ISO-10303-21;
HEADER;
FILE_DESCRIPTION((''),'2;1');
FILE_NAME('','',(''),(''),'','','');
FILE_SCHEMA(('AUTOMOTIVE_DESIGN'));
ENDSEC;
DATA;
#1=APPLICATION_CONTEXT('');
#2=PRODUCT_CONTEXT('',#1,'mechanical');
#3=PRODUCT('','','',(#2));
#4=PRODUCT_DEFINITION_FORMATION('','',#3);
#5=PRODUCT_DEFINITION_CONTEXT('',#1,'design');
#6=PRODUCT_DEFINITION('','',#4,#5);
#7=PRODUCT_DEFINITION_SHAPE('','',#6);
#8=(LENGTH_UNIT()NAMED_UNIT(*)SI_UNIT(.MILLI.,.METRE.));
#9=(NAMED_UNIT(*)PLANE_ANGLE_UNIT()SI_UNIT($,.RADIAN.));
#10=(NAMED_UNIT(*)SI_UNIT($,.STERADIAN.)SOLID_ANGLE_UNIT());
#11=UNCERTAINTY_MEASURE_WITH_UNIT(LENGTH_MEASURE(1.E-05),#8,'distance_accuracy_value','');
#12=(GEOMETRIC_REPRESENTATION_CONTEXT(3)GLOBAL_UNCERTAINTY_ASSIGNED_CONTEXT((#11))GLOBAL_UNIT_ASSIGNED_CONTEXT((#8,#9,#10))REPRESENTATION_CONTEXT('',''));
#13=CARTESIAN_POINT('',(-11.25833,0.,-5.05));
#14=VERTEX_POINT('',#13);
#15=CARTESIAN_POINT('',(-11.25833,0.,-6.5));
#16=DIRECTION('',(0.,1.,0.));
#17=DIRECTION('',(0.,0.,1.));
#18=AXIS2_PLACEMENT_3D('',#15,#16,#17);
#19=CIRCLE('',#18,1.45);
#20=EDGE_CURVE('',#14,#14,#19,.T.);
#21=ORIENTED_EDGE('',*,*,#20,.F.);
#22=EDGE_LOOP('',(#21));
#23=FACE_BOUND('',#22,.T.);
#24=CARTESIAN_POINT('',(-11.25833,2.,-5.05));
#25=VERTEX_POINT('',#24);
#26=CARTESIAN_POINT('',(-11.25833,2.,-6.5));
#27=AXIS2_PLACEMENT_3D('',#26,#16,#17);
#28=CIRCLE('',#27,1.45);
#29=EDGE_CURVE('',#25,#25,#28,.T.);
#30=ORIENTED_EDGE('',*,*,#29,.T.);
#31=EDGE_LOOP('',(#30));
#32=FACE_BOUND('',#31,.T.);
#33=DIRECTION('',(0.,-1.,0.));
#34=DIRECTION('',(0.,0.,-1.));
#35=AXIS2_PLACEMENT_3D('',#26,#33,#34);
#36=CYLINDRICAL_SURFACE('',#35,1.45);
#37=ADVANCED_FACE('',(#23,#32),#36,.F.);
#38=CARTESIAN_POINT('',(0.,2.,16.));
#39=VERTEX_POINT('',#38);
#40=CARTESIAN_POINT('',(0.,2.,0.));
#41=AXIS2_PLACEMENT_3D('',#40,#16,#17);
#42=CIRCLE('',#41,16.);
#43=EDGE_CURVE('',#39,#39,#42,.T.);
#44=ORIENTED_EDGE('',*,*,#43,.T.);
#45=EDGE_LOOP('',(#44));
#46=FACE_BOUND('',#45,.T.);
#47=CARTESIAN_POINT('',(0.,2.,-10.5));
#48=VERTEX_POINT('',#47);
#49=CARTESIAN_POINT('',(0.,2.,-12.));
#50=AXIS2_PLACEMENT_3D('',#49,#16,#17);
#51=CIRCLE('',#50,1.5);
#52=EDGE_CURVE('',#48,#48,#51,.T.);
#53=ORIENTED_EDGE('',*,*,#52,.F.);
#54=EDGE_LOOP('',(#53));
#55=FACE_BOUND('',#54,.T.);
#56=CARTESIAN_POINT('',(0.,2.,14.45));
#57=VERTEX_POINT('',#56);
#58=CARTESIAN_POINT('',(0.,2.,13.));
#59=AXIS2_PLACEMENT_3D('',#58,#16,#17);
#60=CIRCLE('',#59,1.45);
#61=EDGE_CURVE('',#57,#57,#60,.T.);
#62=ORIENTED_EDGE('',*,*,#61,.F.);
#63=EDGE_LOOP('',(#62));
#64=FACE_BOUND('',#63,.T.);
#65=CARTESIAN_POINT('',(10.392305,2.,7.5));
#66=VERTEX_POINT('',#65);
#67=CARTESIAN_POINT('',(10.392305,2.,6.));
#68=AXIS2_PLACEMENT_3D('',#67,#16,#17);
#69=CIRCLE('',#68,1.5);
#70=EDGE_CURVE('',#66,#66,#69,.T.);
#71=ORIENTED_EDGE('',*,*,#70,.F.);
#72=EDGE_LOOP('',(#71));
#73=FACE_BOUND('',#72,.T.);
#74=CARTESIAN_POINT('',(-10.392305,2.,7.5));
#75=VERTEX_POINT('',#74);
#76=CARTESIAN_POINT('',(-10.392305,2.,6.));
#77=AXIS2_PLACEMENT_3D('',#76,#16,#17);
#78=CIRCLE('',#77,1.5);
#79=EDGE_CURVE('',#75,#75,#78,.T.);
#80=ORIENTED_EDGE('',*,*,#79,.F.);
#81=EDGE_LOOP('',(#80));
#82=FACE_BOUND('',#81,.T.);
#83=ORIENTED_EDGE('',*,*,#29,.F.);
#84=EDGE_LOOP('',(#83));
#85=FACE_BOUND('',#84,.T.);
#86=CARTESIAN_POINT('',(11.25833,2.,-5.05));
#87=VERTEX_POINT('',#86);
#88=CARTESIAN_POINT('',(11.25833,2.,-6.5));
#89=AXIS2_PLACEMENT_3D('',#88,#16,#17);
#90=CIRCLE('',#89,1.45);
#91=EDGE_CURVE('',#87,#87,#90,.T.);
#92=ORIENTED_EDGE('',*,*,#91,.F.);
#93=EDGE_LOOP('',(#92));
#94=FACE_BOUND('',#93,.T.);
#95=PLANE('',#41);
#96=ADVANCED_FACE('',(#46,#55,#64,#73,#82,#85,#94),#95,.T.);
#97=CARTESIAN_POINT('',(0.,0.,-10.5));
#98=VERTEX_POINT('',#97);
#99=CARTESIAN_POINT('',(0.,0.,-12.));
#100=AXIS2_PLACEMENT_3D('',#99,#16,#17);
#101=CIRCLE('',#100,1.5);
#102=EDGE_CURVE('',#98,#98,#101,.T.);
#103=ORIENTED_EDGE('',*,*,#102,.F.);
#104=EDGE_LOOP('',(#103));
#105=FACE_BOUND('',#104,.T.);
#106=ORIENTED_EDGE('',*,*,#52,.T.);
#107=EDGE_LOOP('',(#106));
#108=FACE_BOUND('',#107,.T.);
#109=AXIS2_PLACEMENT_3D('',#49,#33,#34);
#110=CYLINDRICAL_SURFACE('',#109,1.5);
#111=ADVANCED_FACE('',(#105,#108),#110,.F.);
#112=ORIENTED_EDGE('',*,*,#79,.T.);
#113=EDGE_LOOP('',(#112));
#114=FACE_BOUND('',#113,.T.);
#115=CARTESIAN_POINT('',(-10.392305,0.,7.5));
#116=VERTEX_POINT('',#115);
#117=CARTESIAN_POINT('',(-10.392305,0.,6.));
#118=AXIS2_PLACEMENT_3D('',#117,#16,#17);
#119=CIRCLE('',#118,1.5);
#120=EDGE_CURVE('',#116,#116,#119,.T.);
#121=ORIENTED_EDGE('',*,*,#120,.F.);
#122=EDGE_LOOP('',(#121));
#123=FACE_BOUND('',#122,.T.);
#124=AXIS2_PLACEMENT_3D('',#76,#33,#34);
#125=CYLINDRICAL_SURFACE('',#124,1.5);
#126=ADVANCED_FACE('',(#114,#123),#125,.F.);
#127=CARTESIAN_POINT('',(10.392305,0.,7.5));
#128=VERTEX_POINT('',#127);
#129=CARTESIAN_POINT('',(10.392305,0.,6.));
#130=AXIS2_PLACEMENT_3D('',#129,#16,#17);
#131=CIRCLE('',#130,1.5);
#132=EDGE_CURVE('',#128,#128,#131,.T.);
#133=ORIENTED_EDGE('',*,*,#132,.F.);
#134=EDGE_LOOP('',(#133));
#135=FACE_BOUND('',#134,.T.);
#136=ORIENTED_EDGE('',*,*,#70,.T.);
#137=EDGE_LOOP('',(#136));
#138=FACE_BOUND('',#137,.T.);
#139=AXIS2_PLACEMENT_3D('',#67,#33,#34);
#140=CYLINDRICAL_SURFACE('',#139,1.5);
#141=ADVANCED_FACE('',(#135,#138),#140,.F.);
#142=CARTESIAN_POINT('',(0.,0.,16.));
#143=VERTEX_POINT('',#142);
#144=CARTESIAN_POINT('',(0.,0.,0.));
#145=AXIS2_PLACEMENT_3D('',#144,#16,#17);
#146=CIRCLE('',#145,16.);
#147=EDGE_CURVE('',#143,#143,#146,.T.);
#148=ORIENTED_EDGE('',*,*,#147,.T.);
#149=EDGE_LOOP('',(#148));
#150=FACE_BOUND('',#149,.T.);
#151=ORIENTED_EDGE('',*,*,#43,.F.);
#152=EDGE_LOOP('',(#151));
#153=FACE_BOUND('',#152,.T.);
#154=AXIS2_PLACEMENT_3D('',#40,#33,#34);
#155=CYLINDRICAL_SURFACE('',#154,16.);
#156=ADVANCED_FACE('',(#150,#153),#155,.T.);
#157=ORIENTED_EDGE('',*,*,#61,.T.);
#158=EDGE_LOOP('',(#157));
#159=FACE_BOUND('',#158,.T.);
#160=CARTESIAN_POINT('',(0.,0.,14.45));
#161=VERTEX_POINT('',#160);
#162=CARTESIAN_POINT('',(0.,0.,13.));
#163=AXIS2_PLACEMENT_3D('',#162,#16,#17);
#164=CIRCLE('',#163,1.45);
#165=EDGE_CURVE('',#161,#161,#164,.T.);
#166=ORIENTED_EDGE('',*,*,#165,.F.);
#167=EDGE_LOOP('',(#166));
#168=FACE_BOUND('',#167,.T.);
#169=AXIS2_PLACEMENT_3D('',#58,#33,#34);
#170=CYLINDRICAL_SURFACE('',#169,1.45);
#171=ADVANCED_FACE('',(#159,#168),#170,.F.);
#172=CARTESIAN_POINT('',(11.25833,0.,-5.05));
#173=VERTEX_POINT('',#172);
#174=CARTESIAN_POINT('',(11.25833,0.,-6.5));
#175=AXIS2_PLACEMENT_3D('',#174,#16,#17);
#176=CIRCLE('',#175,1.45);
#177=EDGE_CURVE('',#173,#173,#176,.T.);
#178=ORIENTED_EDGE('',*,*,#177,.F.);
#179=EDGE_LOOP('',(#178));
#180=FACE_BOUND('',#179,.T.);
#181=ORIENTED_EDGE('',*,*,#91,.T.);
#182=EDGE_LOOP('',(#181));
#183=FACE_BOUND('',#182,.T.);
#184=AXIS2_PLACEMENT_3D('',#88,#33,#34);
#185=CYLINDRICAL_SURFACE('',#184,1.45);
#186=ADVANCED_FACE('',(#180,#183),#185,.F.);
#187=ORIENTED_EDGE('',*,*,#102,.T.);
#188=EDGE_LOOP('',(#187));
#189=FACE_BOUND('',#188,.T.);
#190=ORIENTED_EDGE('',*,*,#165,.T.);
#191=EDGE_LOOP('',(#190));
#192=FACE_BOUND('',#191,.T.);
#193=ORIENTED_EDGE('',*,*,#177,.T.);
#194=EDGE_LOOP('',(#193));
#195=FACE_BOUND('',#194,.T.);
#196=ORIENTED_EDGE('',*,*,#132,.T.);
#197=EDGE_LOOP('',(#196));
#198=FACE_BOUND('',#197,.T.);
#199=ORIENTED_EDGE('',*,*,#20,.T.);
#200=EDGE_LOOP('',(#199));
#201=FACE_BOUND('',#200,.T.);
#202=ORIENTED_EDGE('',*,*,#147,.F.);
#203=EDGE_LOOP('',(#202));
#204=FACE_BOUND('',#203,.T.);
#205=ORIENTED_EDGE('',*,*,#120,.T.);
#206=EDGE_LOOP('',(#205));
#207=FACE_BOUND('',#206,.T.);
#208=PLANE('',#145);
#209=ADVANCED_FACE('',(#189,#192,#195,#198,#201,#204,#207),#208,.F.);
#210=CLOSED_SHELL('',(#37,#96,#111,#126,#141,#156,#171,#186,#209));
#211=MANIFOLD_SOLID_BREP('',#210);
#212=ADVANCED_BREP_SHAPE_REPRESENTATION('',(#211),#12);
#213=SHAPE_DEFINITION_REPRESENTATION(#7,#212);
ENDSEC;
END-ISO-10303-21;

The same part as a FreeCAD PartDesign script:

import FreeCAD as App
import Part
import Sketcher
from FreeCAD import Vector

doc = App.newDocument("Part")
body = doc.addObject("PartDesign::Body", "Body")

# Sketch on XZ plane
sketch1 = body.newObject("Sketcher::SketchObject", "Sketch")
sketch1.AttachmentSupport = (doc.getObject("XZ_Plane"), [""])
sketch1.MapMode = "FlatFace"
sketch1.addGeometry(Part.Circle(Vector(0, 0, 0), Vector(0, 0, 1), 16), False)
sketch1.addGeometry(Part.Circle(Vector(-10.4, 6, 0), Vector(0, 0, 1), 1.5), False)
sketch1.addGeometry(Part.Circle(Vector(0, 13, 0), Vector(0, 0, 1), 1.4), False)
sketch1.addGeometry(Part.Circle(Vector(10.4, 6, 0), Vector(0, 0, 1), 1.5), False)
sketch1.addGeometry(Part.Circle(Vector(-11.3, -6.5, 0), Vector(0, 0, 1), 1.4), False)
sketch1.addGeometry(Part.Circle(Vector(11.3, -6.5, 0), Vector(0, 0, 1), 1.4), False)
sketch1.addGeometry(Part.Circle(Vector(0, -12, 0), Vector(0, 0, 1), 1.5), False)
sketch1.addConstraint(Sketcher.Constraint("Coincident", 0, 3, -1, 1))
sketch1.addConstraint(Sketcher.Constraint("Equal", 1, 3))
sketch1.addConstraint(Sketcher.Constraint("Equal", 2, 4))
sketch1.addConstraint(Sketcher.Constraint("Equal", 4, 5))
sketch1.addConstraint(Sketcher.Constraint("Equal", 3, 6))
sketch1.addConstraint(Sketcher.Constraint("Symmetric", 1, 3, 3, 3, -2))
sketch1.addConstraint(Sketcher.Constraint("Symmetric", 4, 3, 5, 3, -2))
sketch1.addConstraint(Sketcher.Constraint("PointOnObject", 2, 3, -2))
sketch1.addConstraint(Sketcher.Constraint("PointOnObject", 6, 3, -2))
sketch1.addConstraint(Sketcher.Constraint("Diameter", 0, 32.0))
sketch1.addConstraint(Sketcher.Constraint("Diameter", 1, 3.0))
sketch1.addConstraint(Sketcher.Constraint("Diameter", 2, 2.9))
sketch1.addConstraint(Sketcher.Constraint("DistanceY", -1, 1, 1, 3, 6.0))
sketch1.addConstraint(Sketcher.Constraint("DistanceY", -1, 1, 2, 3, 13.0))
sketch1.addConstraint(Sketcher.Constraint("DistanceY", 6, 3, -1, 1, 12.0))
sketch1.addConstraint(Sketcher.Constraint("DistanceY", 4, 3, -1, 1, 6.5))
sketch1.addConstraint(Sketcher.Constraint("DistanceX", 4, 3, -1, 1, 11.25833))
sketch1.addConstraint(Sketcher.Constraint("DistanceX", 1, 3, 3, 3, 20.78461))
pad1 = body.newObject("PartDesign::Pad", "Pad")
pad1.Profile = sketch1
pad1.Length = 2
pad1.Reversed = True

doc.recompute()
